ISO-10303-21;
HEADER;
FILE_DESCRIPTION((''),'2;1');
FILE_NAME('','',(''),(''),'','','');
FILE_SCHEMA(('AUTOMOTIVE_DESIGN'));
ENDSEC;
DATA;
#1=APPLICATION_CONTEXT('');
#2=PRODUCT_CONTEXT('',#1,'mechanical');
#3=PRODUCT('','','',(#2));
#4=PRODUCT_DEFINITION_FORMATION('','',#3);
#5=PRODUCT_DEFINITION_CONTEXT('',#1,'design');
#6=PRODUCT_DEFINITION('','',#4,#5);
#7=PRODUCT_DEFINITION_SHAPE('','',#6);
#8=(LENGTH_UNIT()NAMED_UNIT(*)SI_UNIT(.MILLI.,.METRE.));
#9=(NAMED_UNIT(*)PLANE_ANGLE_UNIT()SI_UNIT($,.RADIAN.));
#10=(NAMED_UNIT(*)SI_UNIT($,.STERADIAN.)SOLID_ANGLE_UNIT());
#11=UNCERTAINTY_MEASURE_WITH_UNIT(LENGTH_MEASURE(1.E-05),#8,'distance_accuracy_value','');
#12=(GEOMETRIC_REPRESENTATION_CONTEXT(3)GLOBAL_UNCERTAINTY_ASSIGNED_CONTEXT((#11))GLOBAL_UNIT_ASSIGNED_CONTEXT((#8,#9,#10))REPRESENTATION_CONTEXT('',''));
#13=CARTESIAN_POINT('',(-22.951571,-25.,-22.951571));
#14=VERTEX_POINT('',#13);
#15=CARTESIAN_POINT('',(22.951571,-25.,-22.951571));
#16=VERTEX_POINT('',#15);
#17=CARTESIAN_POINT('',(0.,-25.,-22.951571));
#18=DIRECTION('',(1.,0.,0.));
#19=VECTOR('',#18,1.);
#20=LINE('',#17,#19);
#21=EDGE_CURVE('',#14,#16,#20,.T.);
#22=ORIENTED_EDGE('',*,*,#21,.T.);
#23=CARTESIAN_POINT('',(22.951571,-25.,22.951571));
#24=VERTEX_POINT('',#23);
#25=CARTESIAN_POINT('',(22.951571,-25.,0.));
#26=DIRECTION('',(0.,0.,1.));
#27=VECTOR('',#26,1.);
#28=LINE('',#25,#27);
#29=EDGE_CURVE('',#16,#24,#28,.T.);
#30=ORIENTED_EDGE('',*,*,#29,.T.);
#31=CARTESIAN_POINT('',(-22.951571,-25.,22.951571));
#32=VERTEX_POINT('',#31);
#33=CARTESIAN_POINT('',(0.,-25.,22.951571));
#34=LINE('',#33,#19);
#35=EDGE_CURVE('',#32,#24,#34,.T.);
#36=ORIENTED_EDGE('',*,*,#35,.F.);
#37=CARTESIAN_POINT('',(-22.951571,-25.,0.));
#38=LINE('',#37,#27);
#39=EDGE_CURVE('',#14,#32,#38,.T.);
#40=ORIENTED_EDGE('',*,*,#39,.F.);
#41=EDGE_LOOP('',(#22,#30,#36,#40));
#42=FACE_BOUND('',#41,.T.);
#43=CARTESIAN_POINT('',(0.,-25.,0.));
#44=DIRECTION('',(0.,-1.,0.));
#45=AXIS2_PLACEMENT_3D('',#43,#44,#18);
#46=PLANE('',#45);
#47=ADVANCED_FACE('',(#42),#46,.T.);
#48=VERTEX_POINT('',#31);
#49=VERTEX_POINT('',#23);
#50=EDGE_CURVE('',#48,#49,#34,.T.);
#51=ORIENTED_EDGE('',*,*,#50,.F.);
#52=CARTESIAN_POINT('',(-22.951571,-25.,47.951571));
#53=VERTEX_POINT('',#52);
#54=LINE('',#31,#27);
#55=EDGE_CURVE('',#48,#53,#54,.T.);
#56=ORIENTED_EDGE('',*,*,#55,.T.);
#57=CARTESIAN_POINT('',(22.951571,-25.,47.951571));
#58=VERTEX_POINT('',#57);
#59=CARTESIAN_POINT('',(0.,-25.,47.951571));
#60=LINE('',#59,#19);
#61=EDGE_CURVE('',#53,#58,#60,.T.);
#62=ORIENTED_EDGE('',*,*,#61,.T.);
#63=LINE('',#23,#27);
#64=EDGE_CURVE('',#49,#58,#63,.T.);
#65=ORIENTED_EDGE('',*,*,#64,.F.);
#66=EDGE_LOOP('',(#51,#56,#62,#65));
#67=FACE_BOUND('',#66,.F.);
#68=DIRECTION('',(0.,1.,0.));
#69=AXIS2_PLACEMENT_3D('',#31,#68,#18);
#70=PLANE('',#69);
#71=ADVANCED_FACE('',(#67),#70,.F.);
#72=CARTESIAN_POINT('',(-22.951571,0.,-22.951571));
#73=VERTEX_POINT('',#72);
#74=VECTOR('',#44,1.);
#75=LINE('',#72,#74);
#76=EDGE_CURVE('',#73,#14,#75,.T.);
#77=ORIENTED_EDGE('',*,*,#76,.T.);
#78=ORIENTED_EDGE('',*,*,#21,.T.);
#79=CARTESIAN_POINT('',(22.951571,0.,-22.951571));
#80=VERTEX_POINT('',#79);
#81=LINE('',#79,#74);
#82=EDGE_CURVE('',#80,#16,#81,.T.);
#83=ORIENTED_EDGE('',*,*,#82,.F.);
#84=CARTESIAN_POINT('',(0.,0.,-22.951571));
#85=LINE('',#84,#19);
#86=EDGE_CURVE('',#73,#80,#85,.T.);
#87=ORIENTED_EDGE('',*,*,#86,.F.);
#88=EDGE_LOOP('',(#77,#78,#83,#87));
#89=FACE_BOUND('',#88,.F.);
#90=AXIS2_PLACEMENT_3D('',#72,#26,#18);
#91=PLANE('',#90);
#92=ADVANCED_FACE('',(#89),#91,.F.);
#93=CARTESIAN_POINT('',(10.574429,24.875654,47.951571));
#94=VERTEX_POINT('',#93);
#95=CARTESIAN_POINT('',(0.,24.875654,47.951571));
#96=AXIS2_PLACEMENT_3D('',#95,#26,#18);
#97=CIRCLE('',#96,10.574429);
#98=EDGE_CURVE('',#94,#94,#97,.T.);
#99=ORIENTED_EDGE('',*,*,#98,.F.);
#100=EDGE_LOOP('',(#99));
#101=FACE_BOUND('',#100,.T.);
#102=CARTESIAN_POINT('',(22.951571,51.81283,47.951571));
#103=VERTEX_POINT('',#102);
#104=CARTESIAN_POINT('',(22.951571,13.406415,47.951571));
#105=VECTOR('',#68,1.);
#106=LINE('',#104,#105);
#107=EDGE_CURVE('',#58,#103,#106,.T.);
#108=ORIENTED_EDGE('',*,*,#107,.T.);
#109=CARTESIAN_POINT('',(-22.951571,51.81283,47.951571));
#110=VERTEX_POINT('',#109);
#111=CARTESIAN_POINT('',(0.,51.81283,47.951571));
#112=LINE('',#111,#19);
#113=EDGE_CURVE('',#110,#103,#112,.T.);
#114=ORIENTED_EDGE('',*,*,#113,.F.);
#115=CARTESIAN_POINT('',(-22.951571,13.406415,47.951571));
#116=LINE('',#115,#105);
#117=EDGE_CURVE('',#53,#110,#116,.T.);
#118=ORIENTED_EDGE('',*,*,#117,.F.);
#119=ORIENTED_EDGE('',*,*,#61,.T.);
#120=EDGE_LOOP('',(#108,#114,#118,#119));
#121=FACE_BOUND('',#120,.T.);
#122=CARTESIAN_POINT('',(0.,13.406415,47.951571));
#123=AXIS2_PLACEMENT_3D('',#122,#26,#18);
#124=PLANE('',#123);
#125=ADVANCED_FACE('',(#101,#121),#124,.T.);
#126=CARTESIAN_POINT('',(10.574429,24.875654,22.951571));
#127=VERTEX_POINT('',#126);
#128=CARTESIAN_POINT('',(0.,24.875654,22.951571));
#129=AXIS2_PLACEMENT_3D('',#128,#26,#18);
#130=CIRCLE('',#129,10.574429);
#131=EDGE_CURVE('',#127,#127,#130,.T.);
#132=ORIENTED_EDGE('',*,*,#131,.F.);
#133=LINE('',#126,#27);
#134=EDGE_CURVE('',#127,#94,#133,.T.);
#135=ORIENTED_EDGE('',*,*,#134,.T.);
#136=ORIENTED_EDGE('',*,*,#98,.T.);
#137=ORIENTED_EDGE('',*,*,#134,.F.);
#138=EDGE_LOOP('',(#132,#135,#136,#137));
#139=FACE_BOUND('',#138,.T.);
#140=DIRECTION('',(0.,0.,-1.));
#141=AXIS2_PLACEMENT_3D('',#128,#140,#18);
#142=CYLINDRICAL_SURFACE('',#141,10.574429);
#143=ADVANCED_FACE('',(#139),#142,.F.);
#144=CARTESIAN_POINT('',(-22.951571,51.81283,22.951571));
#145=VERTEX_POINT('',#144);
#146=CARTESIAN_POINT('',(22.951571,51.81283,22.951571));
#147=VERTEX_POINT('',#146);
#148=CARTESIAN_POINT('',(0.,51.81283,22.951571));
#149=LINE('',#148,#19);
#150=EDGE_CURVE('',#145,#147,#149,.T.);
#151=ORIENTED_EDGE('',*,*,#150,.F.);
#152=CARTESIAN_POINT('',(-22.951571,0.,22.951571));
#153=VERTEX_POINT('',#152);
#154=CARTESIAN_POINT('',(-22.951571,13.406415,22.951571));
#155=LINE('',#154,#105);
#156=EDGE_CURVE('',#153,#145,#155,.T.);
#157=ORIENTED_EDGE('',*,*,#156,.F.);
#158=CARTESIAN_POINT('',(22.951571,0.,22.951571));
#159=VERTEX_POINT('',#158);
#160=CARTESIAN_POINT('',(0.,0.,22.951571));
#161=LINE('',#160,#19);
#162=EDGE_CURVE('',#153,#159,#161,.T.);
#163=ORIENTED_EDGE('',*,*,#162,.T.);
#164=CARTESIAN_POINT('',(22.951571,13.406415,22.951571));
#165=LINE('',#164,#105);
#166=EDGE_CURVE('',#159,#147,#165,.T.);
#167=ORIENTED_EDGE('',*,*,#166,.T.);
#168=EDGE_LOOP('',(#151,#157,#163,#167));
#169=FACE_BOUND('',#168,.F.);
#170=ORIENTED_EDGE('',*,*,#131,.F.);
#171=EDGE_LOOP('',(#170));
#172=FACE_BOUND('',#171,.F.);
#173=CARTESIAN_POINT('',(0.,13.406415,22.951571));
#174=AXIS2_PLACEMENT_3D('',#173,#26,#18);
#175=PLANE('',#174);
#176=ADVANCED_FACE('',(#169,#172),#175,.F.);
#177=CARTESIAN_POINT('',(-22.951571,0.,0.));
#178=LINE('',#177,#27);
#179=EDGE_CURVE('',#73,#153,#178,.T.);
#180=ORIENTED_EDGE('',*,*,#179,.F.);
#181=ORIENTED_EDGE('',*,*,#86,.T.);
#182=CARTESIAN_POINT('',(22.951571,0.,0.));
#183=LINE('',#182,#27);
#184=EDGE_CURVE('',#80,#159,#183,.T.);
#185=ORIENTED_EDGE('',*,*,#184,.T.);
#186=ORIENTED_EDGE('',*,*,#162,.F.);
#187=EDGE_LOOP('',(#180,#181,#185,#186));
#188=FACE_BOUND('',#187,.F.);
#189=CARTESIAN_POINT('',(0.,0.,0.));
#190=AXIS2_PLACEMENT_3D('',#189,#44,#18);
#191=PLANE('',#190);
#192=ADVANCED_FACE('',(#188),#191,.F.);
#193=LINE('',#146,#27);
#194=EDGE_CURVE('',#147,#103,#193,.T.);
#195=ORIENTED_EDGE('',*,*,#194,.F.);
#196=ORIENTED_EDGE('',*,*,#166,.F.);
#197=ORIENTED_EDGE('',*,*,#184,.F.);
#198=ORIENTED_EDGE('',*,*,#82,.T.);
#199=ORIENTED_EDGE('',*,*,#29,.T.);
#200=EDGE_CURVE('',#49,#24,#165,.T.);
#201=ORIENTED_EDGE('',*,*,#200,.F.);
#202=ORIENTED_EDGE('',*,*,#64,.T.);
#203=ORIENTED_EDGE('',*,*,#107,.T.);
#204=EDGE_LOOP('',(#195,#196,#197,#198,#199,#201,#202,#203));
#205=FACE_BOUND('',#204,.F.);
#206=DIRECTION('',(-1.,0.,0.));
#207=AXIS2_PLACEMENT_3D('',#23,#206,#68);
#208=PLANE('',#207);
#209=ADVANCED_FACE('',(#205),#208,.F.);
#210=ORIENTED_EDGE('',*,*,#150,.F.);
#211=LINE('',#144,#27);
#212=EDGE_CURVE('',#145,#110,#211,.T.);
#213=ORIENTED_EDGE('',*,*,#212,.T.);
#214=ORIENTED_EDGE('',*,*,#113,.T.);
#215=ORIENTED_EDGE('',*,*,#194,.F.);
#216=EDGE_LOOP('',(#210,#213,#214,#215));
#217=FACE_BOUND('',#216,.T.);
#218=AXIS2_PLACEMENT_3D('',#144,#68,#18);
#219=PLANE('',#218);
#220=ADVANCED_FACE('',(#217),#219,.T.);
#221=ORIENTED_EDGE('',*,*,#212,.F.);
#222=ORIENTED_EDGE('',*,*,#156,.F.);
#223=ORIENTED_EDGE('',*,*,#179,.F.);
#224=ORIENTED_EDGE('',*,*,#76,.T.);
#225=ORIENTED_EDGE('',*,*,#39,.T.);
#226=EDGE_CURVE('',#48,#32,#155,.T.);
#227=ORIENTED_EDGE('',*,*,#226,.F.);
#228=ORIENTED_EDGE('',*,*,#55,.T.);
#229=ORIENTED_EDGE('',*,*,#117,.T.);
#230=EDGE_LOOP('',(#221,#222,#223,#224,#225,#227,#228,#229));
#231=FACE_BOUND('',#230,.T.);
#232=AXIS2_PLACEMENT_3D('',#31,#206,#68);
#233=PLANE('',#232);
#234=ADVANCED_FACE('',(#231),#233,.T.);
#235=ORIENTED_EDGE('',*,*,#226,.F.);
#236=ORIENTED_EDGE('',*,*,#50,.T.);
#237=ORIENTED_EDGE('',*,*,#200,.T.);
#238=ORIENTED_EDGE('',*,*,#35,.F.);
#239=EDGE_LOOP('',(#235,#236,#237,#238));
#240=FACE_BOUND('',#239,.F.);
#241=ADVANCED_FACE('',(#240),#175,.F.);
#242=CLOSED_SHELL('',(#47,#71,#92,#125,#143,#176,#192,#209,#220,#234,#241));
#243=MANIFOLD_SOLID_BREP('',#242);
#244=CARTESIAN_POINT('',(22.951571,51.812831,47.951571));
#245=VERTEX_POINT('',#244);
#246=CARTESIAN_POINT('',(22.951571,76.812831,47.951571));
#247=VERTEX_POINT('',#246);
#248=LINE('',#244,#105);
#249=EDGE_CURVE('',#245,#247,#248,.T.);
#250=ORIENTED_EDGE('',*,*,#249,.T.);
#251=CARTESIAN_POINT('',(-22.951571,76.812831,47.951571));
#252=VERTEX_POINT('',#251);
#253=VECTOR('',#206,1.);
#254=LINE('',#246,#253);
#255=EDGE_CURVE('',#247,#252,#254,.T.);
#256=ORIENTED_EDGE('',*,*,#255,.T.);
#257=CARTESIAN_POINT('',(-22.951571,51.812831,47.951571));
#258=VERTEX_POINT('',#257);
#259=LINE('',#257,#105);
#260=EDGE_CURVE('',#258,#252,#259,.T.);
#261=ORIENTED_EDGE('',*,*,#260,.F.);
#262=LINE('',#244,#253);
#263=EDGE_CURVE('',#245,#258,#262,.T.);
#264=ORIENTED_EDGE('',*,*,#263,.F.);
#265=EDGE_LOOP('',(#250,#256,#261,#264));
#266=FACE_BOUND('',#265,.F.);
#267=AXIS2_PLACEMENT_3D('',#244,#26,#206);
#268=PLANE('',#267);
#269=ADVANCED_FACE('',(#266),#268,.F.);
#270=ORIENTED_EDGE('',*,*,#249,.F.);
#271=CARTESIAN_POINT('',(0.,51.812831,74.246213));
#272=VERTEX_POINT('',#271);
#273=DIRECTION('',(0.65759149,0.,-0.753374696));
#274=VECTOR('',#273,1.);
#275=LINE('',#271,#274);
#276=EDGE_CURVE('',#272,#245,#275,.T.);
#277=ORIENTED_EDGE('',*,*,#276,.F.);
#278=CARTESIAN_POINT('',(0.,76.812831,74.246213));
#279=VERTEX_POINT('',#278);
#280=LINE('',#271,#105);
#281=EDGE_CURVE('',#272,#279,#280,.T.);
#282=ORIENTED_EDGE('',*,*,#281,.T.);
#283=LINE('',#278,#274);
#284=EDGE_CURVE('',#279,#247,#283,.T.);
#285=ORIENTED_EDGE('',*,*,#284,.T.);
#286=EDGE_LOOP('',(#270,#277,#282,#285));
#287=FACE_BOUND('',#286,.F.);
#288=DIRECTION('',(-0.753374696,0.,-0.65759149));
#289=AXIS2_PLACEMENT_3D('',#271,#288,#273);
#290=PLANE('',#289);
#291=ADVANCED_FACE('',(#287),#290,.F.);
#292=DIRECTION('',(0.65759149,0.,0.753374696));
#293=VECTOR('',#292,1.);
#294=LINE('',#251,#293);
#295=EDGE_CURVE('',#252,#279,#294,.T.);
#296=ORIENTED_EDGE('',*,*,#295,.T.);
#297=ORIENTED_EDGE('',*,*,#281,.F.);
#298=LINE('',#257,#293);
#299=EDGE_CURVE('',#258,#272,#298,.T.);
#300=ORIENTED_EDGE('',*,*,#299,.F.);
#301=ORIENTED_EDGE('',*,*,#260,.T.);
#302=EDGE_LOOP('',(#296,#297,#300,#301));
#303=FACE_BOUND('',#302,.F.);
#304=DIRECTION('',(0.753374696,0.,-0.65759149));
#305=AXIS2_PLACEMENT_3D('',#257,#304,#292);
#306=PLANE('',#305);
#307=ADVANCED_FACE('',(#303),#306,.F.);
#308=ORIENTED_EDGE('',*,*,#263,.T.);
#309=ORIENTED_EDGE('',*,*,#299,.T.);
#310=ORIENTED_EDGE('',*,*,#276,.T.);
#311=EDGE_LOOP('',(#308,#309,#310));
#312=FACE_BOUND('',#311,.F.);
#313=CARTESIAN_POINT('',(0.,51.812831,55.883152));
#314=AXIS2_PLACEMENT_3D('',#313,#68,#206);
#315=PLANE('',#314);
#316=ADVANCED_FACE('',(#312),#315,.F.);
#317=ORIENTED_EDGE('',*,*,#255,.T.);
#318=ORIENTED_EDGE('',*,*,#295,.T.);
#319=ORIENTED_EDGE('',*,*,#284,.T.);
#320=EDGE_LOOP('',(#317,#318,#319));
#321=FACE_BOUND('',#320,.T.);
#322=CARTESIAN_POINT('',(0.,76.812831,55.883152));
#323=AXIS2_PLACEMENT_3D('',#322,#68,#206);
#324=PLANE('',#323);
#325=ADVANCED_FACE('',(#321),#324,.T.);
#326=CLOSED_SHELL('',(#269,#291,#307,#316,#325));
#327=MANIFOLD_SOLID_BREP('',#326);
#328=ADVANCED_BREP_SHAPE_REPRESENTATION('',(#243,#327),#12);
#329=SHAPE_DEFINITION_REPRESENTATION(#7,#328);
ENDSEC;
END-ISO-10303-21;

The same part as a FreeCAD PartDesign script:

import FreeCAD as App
import Part
import Sketcher

V = App.Vector

doc = App.newDocument("Part")
params = doc.addObject("Spreadsheet::Sheet", "Params")
for row, (alias, value) in enumerate([
    ("pad1_length", "25 mm"),
    ("pad2_length", "25 mm"),
    ("pad3_length", "25 mm"),
], start=1):
    params.set(f"A{row}", alias)
    params.set(f"B{row}", "=" + value)
    params.setAlias(f"B{row}", alias)

body = doc.addObject("PartDesign::Body", "Body")

sketch1 = body.newObject("Sketcher::SketchObject", "Sketch")
sketch1.AttachmentSupport = (doc.getObject("XZ_Plane"), [""])
sketch1.MapMode = "FlatFace"
sketch1.addGeometry([
    Part.LineSegment(V(-22.951571, 22.951571, 0), V(-22.951571, -22.951571, 0)),
    Part.LineSegment(V(-22.951571, -22.951571, 0), V(22.951571, -22.951571, 0)),
    Part.LineSegment(V(22.951571, -22.951571, 0), V(22.951571, 22.951571, 0)),
    Part.LineSegment(V(22.951571, 22.951571, 0), V(-22.951571, 22.951571, 0)),
], False)
sketch1.addConstraint([
    Sketcher.Constraint("Coincident", 0, 2, 1, 1),
    Sketcher.Constraint("Coincident", 1, 2, 2, 1),
    Sketcher.Constraint("Coincident", 2, 2, 3, 1),
    Sketcher.Constraint("Coincident", 3, 2, 0, 1),
    Sketcher.Constraint("Vertical", 0),
    Sketcher.Constraint("Horizontal", 1),
    Sketcher.Constraint("Vertical", 2),
    Sketcher.Constraint("Horizontal", 3),
    Sketcher.Constraint("Symmetric", 0, 2, 2, 2, -1, 1),
    Sketcher.Constraint("Equal", 3, 0),
    Sketcher.Constraint("DistanceX", 1, 1, 1, 2, 45.903142),
])
pad1 = body.newObject("PartDesign::Pad", "Pad")
pad1.Profile = sketch1
pad1.setExpression("Length", "Params.pad1_length")

sketch2 = body.newObject("Sketcher::SketchObject", "Sketch001")
sketch2.AttachmentSupport = (doc.getObject("XY_Plane"), [""])
sketch2.MapMode = "FlatFace"
sketch2.AttachmentOffset = App.Placement(V(0, 0, 22.951571), App.Rotation())
sketch2.addGeometry([
    Part.LineSegment(V(-22.951571, 51.81283, 0), V(-22.951571, -25, 0)),
    Part.LineSegment(V(-22.951571, -25, 0), V(22.951571, -25, 0)),
    Part.LineSegment(V(22.951571, -25, 0), V(22.951571, 51.81283, 0)),
    Part.LineSegment(V(22.951571, 51.81283, 0), V(-22.951571, 51.81283, 0)),
    Part.Circle(V(0, 24.875654, 0), V(0, 0, 1), 10.574429),
], False)
sketch2.addConstraint([
    Sketcher.Constraint("Coincident", 0, 2, 1, 1),
    Sketcher.Constraint("Coincident", 1, 2, 2, 1),
    Sketcher.Constraint("Coincident", 2, 2, 3, 1),
    Sketcher.Constraint("Coincident", 3, 2, 0, 1),
    Sketcher.Constraint("Vertical", 0),
    Sketcher.Constraint("Horizontal", 1),
    Sketcher.Constraint("Vertical", 2),
    Sketcher.Constraint("Horizontal", 3),
    Sketcher.Constraint("PointOnObject", 4, 3, -2),
    Sketcher.Constraint("DistanceY", 0, 2, -1, 1, 25.0),
    Sketcher.Constraint("Diameter", 4, 21.148858),
    Sketcher.Constraint("DistanceY", 0, 2, 0, 1, 76.812831),
    Sketcher.Constraint("DistanceX", 1, 1, 1, 2, 45.903142),
    Sketcher.Constraint("DistanceX", 0, 2, -1, 1, 22.951571),
    Sketcher.Constraint("DistanceY", -1, 1, 4, 3, 24.875654),
])
pad2 = body.newObject("PartDesign::Pad", "Pad001")
pad2.Profile = sketch2
pad2.setExpression("Length", "Params.pad2_length")
body2 = doc.addObject("PartDesign::Body", "Body001")

sketch3 = body2.newObject("Sketcher::SketchObject", "Sketch002")
sketch3.AttachmentSupport = (doc.getObject("XZ_Plane001"), [""])
sketch3.MapMode = "FlatFace"
sketch3.AttachmentOffset = App.Placement(V(0, 0, -51.812831), App.Rotation())
sketch3.addGeometry([
    Part.LineSegment(V(0, 74.246213, 0), V(22.951571, 47.951571, 0)),
    Part.LineSegment(V(22.951571, 47.951571, 0), V(-22.951571, 47.951571, 0)),
    Part.LineSegment(V(-22.951571, 47.951571, 0), V(0, 74.246213, 0)),
], False)
sketch3.addConstraint([
    Sketcher.Constraint("Coincident", 0, 2, 1, 1),
    Sketcher.Constraint("Coincident", 1, 2, 2, 1),
    Sketcher.Constraint("Coincident", 2, 2, 0, 1),
    Sketcher.Constraint("Horizontal", 1),
    Sketcher.Constraint("PointOnObject", 2, 2, -2),
    Sketcher.Constraint("Equal", 0, 2),
    Sketcher.Constraint("DistanceX", 1, 2, 1, 1, 45.903142),
    Sketcher.Constraint("DistanceY", -1, 1, 0, 2, 47.951571),
    Sketcher.Constraint("DistanceY", 0, 2, 2, 2, 26.294642),
])
pad3 = body2.newObject("PartDesign::Pad", "Pad002")
pad3.Profile = sketch3
pad3.setExpression("Length", "Params.pad3_length")
pad3.Reversed = True

doc.recompute()
